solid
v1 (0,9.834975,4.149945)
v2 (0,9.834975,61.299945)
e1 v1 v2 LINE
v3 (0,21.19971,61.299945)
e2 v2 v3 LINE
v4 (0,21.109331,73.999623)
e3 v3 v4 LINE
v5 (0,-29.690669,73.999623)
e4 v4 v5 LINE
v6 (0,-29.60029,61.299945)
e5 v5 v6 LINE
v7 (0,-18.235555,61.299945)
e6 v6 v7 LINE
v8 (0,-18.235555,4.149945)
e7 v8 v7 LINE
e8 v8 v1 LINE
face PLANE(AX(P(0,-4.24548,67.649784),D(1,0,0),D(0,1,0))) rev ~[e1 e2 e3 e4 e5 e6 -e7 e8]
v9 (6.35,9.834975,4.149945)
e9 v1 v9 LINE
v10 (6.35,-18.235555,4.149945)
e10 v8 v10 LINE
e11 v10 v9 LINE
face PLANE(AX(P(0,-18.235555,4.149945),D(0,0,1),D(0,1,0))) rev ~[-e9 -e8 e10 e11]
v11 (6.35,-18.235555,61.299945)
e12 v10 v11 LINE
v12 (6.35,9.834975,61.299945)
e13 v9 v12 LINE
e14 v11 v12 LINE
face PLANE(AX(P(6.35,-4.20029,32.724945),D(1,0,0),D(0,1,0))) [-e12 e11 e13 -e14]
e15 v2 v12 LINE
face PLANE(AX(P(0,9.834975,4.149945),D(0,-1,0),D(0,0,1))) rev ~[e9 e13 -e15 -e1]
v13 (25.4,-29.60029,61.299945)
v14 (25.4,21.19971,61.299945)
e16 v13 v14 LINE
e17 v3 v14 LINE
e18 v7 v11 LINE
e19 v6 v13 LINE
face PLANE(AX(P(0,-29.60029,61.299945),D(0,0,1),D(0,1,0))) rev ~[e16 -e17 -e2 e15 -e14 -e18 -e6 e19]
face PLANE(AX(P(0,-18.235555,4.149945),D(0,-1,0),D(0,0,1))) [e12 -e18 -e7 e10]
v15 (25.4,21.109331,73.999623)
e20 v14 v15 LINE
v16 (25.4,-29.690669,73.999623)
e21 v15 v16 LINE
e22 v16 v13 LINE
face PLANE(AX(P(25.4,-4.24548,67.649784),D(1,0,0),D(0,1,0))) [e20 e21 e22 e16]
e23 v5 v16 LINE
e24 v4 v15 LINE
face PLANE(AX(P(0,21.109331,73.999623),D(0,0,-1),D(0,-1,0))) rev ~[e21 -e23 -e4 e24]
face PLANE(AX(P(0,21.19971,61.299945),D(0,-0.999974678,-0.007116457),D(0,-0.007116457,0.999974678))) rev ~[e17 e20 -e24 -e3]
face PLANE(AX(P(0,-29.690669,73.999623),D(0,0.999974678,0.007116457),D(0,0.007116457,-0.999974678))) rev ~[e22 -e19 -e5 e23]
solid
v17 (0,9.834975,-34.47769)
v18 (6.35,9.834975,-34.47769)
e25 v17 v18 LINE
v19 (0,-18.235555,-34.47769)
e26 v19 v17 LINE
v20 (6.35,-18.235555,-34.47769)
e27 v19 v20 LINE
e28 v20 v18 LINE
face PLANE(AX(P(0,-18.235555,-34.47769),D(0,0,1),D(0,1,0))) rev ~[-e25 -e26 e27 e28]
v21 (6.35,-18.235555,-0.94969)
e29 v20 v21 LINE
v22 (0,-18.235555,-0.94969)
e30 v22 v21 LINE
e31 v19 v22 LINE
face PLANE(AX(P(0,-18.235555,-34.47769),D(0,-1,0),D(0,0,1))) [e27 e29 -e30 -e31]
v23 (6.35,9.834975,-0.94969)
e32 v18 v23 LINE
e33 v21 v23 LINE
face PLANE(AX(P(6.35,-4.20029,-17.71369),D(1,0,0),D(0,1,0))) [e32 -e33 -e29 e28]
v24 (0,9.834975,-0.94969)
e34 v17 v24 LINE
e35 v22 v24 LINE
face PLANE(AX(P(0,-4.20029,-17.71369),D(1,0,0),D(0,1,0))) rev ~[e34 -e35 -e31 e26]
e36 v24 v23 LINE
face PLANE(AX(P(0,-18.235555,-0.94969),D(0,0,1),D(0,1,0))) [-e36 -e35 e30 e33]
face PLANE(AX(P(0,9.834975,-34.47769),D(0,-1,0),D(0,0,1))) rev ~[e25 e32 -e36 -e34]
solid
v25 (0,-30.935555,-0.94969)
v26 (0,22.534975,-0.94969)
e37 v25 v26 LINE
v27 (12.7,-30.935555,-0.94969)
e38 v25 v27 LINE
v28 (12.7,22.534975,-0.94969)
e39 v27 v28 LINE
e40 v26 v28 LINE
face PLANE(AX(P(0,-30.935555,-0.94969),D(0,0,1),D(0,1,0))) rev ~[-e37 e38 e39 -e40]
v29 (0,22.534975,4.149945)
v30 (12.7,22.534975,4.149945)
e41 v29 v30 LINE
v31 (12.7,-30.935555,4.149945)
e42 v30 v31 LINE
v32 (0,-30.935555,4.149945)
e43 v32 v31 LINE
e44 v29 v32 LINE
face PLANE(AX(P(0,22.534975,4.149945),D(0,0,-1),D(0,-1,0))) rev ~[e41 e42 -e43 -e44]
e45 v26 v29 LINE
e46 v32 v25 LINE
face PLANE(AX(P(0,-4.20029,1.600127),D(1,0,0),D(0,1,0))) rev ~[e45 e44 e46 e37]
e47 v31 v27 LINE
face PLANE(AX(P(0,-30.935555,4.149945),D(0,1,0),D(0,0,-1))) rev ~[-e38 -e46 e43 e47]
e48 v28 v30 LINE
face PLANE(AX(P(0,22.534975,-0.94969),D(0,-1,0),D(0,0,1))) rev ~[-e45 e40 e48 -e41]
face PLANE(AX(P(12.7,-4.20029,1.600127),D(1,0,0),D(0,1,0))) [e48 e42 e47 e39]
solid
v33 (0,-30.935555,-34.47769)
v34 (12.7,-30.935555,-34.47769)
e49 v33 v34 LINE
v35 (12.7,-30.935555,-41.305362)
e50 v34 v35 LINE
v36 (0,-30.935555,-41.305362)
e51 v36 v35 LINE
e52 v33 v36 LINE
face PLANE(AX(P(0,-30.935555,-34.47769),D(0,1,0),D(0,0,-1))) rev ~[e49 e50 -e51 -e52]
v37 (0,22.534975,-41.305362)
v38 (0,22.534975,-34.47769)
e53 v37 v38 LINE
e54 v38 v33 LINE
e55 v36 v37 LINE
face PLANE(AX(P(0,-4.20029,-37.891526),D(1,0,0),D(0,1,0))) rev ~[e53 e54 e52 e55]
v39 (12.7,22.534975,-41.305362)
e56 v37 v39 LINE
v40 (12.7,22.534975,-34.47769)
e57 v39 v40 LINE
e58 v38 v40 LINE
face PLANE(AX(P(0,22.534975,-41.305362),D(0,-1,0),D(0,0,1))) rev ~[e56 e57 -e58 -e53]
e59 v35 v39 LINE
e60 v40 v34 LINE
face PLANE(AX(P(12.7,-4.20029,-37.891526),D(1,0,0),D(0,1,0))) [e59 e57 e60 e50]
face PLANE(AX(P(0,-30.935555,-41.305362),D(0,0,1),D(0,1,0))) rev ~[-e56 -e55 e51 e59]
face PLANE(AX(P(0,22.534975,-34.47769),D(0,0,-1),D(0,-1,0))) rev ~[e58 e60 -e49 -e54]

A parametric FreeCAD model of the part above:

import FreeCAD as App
import Part
import Sketcher

V = App.Vector
Q = App.Units.Quantity

doc = App.newDocument("Part")
params = doc.addObject("Spreadsheet::Sheet", "Params")
for row, (alias, value) in enumerate([
    ("sketch1_height", "2.25 in"),
    ("sketch1_height2", "1.32 in"),
    ("pad1_length", "0.25 in"),
    ("sketch2_width", "2 in"),
    ("sketch2_length", "0.5 in"),
    ("pad2_length", "1 in"),
    ("pad3_length", "0.5 in"),
], start=1):
    params.set(f"A{row}", alias)
    params.set(f"B{row}", "=" + value)
    params.setAlias(f"B{row}", alias)

body = doc.addObject("PartDesign::Body", "Body")
body.AllowCompound = True

# Sketch on YZ plane
sketch1 = body.newObject("Sketcher::SketchObject", "Sketch")
sketch1.AttachmentSupport = (doc.getObject("YZ_Plane"), [""])
sketch1.MapMode = "FlatFace"
sketch1.addGeometry(Part.LineSegment(V(-18, 61, 0), V(-18, 4, 0)), False)
sketch1.addGeometry(Part.LineSegment(V(-18, 4, 0), V(10, 4, 0)), False)
sketch1.addGeometry(Part.LineSegment(V(10, 4, 0), V(10, 61, 0)), False)
sketch1.addGeometry(Part.LineSegment(V(10, 61, 0), V(-18, 61, 0)), False)
sketch1.addGeometry(Part.LineSegment(V(-18, -1, 0), V(-18, -34, 0)), False)
sketch1.addGeometry(Part.LineSegment(V(-18, -34, 0), V(10, -34, 0)), False)
sketch1.addGeometry(Part.LineSegment(V(10, -34, 0), V(10, -1, 0)), False)
sketch1.addGeometry(Part.LineSegment(V(10, -1, 0), V(-18, -1, 0)), False)
sketch1.addConstraint(Sketcher.Constraint("Coincident", 0, 2, 1, 1))
sketch1.addConstraint(Sketcher.Constraint("Coincident", 1, 2, 2, 1))
sketch1.addConstraint(Sketcher.Constraint("Coincident", 2, 2, 3, 1))
sketch1.addConstraint(Sketcher.Constraint("Coincident", 3, 2, 0, 1))
sketch1.addConstraint(Sketcher.Constraint("Coincident", 4, 2, 5, 1))
sketch1.addConstraint(Sketcher.Constraint("Coincident", 5, 2, 6, 1))
sketch1.addConstraint(Sketcher.Constraint("Coincident", 6, 2, 7, 1))
sketch1.addConstraint(Sketcher.Constraint("Coincident", 7, 2, 4, 1))
sketch1.addConstraint(Sketcher.Constraint("Vertical", 0))
sketch1.addConstraint(Sketcher.Constraint("Horizontal", 1))
sketch1.addConstraint(Sketcher.Constraint("Vertical", 2))
sketch1.addConstraint(Sketcher.Constraint("Horizontal", 3))
sketch1.addConstraint(Sketcher.Constraint("Vertical", 4))
sketch1.addConstraint(Sketcher.Constraint("Horizontal", 5))
sketch1.addConstraint(Sketcher.Constraint("Vertical", 6))
sketch1.addConstraint(Sketcher.Constraint("Horizontal", 7))
sketch1.addConstraint(Sketcher.Constraint("Vertical", 3, 2, 4, 2))
sketch1.addConstraint(Sketcher.Constraint("Vertical", 2, 2, 5, 2))
sketch1.addConstraint(Sketcher.Constraint("DistanceY", 0, 2, 0, 1, Q("2.25 in")))
sketch1.addConstraint(Sketcher.Constraint("DistanceY", 4, 2, 4, 1, Q("1.32 in")))
sketch1.addConstraint(Sketcher.Constraint("DistanceX", 1, 1, 1, 2, Q("28.07053 mm")))
sketch1.addConstraint(Sketcher.Constraint("DistanceY", 4, 2, -1, 1, Q("34.47769 mm")))
sketch1.addConstraint(Sketcher.Constraint("DistanceX", 0, 2, -1, 1, Q("18.235555 mm")))
sketch1.addConstraint(Sketcher.Constraint("DistanceY", -1, 1, 0, 2, Q("4.149945 mm")))
sketch1.setExpression("Constraints[18]", "Params.sketch1_height")
sketch1.setExpression("Constraints[19]", "Params.sketch1_height2")
pad1 = body.newObject("PartDesign::Pad", "Pad")
pad1.Profile = sketch1
pad1.setExpression("Length", "Params.pad1_length")

# Sketch on YZ plane
sketch2 = body.newObject("Sketcher::SketchObject", "Sketch001")
sketch2.AttachmentSupport = (doc.getObject("YZ_Plane"), [""])
sketch2.MapMode = "FlatFace"
sketch2.addGeometry(Part.LineSegment(V(-30, 61, 0), V(21, 61, 0)), False)
sketch2.addGeometry(Part.LineSegment(V(21, 61, 0), V(21, 74, 0)), False)
sketch2.addGeometry(Part.LineSegment(V(21, 74, 0), V(-30, 74, 0)), False)
sketch2.addGeometry(Part.LineSegment(V(-30, 74, 0), V(-30, 61, 0)), False)
sketch2.addConstraint(Sketcher.Constraint("Coincident", 0, 2, 1, 1))
sketch2.addConstraint(Sketcher.Constraint("Coincident", 1, 2, 2, 1))
sketch2.addConstraint(Sketcher.Constraint("Coincident", 2, 2, 3, 1))
sketch2.addConstraint(Sketcher.Constraint("Coincident", 3, 2, 0, 1))
sketch2.addConstraint(Sketcher.Constraint("Horizontal", 0))
sketch2.addConstraint(Sketcher.Constraint("Horizontal", 2))
sketch2.addConstraint(Sketcher.Constraint("Parallel", 1, 3))
sketch2.addConstraint(Sketcher.Constraint("DistanceX", 0, 1, 0, 2, Q("2 in")))
sketch2.addConstraint(Sketcher.Constraint("Distance", 1, Q("0.5 in")))
sketch2.addConstraint(Sketcher.Constraint("DistanceX", -1, 1, 0, 2, Q("21.19971 mm")))
sketch2.addConstraint(Sketcher.Constraint("DistanceX", -1, 1, 1, 2, Q("21.109331 mm")))
sketch2.addConstraint(Sketcher.Constraint("DistanceY", -1, 1, 0, 2, Q("61.299945 mm")))
sketch2.setExpression("Constraints[7]", "Params.sketch2_width")
sketch2.setExpression("Constraints[8]", "Params.sketch2_length")
pad2 = body.newObject("PartDesign::Pad", "Pad001")
pad2.Profile = sketch2
pad2.setExpression("Length", "Params.pad2_length")
body2 = doc.addObject("PartDesign::Body", "Body001")
body2.AllowCompound = True

# Sketch on YZ plane
sketch3 = body2.newObject("Sketcher::SketchObject", "Sketch002")
sketch3.AttachmentSupport = (doc.getObject("YZ_Plane001"), [""])
sketch3.MapMode = "FlatFace"
sketch3.addGeometry(Part.LineSegment(V(-31, 4, 0), V(-31, -1, 0)), False)
sketch3.addGeometry(Part.LineSegment(V(-31, -1, 0), V(23, -1, 0)), False)
sketch3.addGeometry(Part.LineSegment(V(23, -1, 0), V(23, 4, 0)), False)
sketch3.addGeometry(Part.LineSegment(V(23, 4, 0), V(-31, 4, 0)), False)
sketch3.addGeometry(Part.LineSegment(V(-31, -34, 0), V(-31, -41, 0)), False)
sketch3.addGeometry(Part.LineSegment(V(-31, -41, 0), V(23, -41, 0)), False)
sketch3.addGeometry(Part.LineSegment(V(23, -41, 0), V(23, -34, 0)), False)
sketch3.addGeometry(Part.LineSegment(V(23, -34, 0), V(-31, -34, 0)), False)
sketch3.addConstraint(Sketcher.Constraint("Coincident", 0, 2, 1, 1))
sketch3.addConstraint(Sketcher.Constraint("Coincident", 1, 2, 2, 1))
sketch3.addConstraint(Sketcher.Constraint("Coincident", 2, 2, 3, 1))
sketch3.addConstraint(Sketcher.Constraint("Coincident", 3, 2, 0, 1))
sketch3.addConstraint(Sketcher.Constraint("Coincident", 4, 2, 5, 1))
sketch3.addConstraint(Sketcher.Constraint("Coincident", 5, 2, 6, 1))
sketch3.addConstraint(Sketcher.Constraint("Coincident", 6, 2, 7, 1))
sketch3.addConstraint(Sketcher.Constraint("Coincident", 7, 2, 4, 1))
sketch3.addConstraint(Sketcher.Constraint("Vertical", 0))
sketch3.addConstraint(Sketcher.Constraint("Horizontal", 1))
sketch3.addConstraint(Sketcher.Constraint("Vertical", 2))
sketch3.addConstraint(Sketcher.Constraint("Horizontal", 3))
sketch3.addConstraint(Sketcher.Constraint("Vertical", 4))
sketch3.addConstraint(Sketcher.Constraint("Horizontal", 5))
sketch3.addConstraint(Sketcher.Constraint("Vertical", 6))
sketch3.addConstraint(Sketcher.Constraint("Horizontal", 7))
sketch3.addConstraint(Sketcher.Constraint("Vertical", 3, 2, 4, 2))
sketch3.addConstraint(Sketcher.Constraint("Vertical", 2, 2, 5, 2))
sketch3.addConstraint(Sketcher.Constraint("DistanceY", 6, 2, 1, 2, Q("1.32 in")))
sketch3.addConstraint(Sketcher.Constraint("DistanceX", 1, 1, 1, 2, Q("53.47053 mm")))
sketch3.addConstraint(Sketcher.Constraint("DistanceY", 4, 2, 4, 1, Q("6.827672 mm")))
sketch3.addConstraint(Sketcher.Constraint("DistanceY", 0, 2, 0, 1, Q("5.099635 mm")))
sketch3.addConstraint(Sketcher.Constraint("DistanceY", 0, 2, -1, 1, Q("0.94969 mm")))
sketch3.addConstraint(Sketcher.Constraint("DistanceX", 0, 2, -1, 1, Q("30.935555 mm")))
pad3 = body2.newObject("PartDesign::Pad", "Pad002")
pad3.Profile = sketch3
pad3.setExpression("Length", "Params.pad3_length")

doc.recompute()
